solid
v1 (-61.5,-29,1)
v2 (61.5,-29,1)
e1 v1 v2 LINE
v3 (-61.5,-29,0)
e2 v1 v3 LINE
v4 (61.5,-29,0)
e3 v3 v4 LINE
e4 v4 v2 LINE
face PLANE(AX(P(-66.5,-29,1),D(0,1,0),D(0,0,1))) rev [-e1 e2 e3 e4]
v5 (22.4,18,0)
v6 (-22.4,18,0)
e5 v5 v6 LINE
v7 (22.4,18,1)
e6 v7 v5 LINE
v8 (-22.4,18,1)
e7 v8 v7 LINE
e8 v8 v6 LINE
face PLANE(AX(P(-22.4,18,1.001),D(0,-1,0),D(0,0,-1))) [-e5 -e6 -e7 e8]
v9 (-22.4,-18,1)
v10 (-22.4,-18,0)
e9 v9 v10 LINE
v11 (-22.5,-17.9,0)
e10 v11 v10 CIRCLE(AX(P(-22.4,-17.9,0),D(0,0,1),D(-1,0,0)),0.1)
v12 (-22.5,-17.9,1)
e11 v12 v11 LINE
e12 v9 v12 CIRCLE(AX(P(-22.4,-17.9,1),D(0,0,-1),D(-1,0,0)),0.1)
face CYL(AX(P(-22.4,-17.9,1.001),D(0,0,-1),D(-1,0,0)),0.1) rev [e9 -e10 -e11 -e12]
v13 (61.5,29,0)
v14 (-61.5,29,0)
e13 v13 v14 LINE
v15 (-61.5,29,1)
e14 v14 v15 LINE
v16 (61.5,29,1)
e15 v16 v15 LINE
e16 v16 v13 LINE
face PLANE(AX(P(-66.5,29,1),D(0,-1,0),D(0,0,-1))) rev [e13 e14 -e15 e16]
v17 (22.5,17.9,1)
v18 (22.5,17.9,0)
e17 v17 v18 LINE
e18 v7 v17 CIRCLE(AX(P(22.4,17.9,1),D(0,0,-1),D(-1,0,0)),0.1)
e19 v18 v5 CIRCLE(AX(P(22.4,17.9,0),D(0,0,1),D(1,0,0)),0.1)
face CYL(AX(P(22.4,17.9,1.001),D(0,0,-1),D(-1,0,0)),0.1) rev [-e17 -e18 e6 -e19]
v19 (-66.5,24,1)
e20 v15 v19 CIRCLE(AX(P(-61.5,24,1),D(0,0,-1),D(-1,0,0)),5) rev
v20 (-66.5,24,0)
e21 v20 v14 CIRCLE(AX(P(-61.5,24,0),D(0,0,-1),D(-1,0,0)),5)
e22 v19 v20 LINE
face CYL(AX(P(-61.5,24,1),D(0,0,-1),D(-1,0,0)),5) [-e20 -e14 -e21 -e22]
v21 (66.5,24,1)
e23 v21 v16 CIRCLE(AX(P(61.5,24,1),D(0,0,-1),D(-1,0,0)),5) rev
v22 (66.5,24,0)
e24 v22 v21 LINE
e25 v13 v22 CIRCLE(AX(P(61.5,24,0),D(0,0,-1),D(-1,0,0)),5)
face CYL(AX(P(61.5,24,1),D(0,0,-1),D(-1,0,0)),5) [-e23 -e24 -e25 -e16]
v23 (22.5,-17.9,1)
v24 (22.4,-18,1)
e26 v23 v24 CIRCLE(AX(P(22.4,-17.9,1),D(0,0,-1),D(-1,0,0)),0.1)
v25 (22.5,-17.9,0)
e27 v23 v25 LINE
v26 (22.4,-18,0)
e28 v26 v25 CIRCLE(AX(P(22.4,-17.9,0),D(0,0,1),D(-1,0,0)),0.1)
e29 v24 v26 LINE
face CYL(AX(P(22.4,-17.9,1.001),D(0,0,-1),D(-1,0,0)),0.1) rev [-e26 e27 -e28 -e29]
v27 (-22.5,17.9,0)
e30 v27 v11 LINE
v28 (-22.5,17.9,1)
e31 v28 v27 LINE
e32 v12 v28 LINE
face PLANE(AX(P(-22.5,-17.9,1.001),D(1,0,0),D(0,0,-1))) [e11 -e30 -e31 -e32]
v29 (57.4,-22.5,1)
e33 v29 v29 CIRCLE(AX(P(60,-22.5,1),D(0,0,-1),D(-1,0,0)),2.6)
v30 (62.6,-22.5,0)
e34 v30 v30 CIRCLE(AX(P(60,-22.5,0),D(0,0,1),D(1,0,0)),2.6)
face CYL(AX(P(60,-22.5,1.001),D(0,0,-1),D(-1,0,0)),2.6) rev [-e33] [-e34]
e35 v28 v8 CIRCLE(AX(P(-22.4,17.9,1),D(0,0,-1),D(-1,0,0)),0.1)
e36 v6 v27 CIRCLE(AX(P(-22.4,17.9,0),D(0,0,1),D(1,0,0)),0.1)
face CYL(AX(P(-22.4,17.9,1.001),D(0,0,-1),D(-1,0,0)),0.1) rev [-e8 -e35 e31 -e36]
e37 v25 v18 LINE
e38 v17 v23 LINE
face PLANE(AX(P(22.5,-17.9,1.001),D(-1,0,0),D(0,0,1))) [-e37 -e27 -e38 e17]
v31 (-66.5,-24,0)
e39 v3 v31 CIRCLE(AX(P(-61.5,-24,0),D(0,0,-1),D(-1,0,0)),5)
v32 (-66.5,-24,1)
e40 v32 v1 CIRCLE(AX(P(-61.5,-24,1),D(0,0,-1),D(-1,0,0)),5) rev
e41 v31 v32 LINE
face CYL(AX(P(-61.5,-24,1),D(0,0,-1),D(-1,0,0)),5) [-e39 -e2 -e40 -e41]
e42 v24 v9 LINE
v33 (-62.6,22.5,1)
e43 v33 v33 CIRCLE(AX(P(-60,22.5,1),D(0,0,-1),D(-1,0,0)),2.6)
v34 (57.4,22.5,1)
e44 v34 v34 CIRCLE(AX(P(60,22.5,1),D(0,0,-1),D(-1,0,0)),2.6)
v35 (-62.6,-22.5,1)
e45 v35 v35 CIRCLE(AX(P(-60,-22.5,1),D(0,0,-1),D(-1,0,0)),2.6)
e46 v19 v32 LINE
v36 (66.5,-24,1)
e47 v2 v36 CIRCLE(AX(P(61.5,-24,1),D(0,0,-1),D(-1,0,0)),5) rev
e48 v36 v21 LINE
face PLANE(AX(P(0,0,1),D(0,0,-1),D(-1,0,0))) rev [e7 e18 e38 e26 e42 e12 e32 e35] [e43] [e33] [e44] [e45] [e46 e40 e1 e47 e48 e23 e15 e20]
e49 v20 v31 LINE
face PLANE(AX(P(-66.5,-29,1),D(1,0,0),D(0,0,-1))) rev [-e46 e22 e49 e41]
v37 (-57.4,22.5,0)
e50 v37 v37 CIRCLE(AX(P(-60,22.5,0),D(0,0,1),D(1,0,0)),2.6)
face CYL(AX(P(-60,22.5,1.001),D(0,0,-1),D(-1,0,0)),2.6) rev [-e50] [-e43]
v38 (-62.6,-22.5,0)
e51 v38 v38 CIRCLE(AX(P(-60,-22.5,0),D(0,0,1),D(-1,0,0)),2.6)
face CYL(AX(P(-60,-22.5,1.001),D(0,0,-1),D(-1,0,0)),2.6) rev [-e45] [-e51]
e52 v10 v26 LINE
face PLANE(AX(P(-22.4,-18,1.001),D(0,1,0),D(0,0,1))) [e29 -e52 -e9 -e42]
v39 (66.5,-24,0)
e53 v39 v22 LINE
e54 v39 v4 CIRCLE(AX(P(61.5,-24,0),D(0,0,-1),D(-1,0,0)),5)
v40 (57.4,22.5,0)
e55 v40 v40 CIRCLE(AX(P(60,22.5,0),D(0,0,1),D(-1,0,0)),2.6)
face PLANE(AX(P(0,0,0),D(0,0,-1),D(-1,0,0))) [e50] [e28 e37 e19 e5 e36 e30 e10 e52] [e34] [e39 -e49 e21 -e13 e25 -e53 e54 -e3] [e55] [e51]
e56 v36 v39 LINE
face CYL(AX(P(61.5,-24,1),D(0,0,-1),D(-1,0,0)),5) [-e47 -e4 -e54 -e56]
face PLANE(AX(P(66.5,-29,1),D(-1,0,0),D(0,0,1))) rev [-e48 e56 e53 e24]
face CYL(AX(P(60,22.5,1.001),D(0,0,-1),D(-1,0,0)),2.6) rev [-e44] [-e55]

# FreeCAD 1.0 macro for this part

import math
import FreeCAD as App
import Part
import Sketcher

V = App.Vector
Q = App.Units.Quantity


def edges_at(feature, points):
    """Names of the edges that pass closest to the given points."""
    edges = feature.Shape.Edges
    near = lambda p: min(range(len(edges)), key=lambda i: edges[i].distToShape(Part.Vertex(*p))[0])
    return sorted({f"Edge{near(p) + 1}" for p in points})


def add_polygon(sketch, points):
    """Adds a closed chain of lines whose ends are joined by coincident constraints."""
    first, n = sketch.GeometryCount, len(points)
    for a, b in zip(points, points[1:] + points[:1]):
        sketch.addGeometry(Part.LineSegment(App.Vector(*a, 0), App.Vector(*b, 0)), False)
    for i in range(n):
        sketch.addConstraint(Sketcher.Constraint("Coincident", first + i, 2, first + (i + 1) % n, 1))

doc = App.newDocument("Part")
params = doc.addObject("Spreadsheet::Sheet", "Params")
for row, (alias, value) in enumerate([
    ("sketch1_width", "133 mm"),
    ("sketch1_height", "58 mm"),
    ("pad1_length", "1 mm"),
    ("sketch2_radius", "0.1 mm"),
    ("sketch2_width", "44.8 mm"),
    ("sketch2_height", "35.8 mm"),
    ("fillet_radius", "5 mm"),
    ("sketch3_diameter", "5.2 mm"),
    ("sketch4_diameter", "5.2 mm"),
    ("sketch5_diameter", "5.2 mm"),
    ("sketch6_diameter", "5.2 mm"),
], start=1):
    params.set(f"A{row}", alias)
    params.set(f"B{row}", "=" + value)
    params.setAlias(f"B{row}", alias)

body = doc.addObject("PartDesign::Body", "Body")

# Sketch on XY plane
sketch1 = body.newObject("Sketcher::SketchObject", "Sketch")
sketch1.AttachmentSupport = (doc.getObject("XY_Plane"), [""])
sketch1.MapMode = "FlatFace"
add_polygon(sketch1, [(-66.5, 29), (-66.5, -29), (66.5, -29), (66.5, 29)])  # lines 0-3
sketch1.addConstraint(Sketcher.Constraint("Vertical", 0))
sketch1.addConstraint(Sketcher.Constraint("Horizontal", 1))
sketch1.addConstraint(Sketcher.Constraint("Vertical", 2))
sketch1.addConstraint(Sketcher.Constraint("Horizontal", 3))
sketch1.addConstraint(Sketcher.Constraint("Symmetric", 0, 2, 2, 2, -1, 1))
sketch1.addConstraint(Sketcher.Constraint("DistanceX", 1, 1, 1, 2, Q("133 mm")))
sketch1.addConstraint(Sketcher.Constraint("DistanceY", 0, 2, 0, 1, Q("58 mm")))
sketch1.setExpression("Constraints[9]", "Params.sketch1_width")
sketch1.setExpression("Constraints[10]", "Params.sketch1_height")
pad1 = body.newObject("PartDesign::Pad", "Pad")
pad1.Profile = sketch1
pad1.setExpression("Length", "Params.pad1_length")

# Sketch on XY plane
sketch2 = body.newObject("Sketcher::SketchObject", "Sketch001")
sketch2.AttachmentSupport = (doc.getObject("XY_Plane"), [""])
sketch2.MapMode = "FlatFace"
sketch2.addGeometry(Part.LineSegment(V(-22.4, -18, 0), V(22.4, -18, 0)), False)
sketch2.addGeometry(Part.ArcOfCircle(Part.Circle(V(22.4, -17.9, 0), V(0, 0, 1), 0.1), math.radians(-90), math.radians(0)), False)
sketch2.addGeometry(Part.LineSegment(V(22.5, -17.9, 0), V(22.5, 17.9, 0)), False)
sketch2.addGeometry(Part.ArcOfCircle(Part.Circle(V(22.4, 17.9, 0), V(0, 0, 1), 0.1), math.radians(0), math.radians(90)), False)
sketch2.addGeometry(Part.LineSegment(V(22.4, 18, 0), V(-22.4, 18, 0)), False)
sketch2.addGeometry(Part.ArcOfCircle(Part.Circle(V(-22.4, 17.9, 0), V(0, 0, 1), 0.1), math.radians(90), math.radians(180)), False)
sketch2.addGeometry(Part.LineSegment(V(-22.5, 17.9, 0), V(-22.5, -17.9, 0)), False)
sketch2.addGeometry(Part.ArcOfCircle(Part.Circle(V(-22.4, -17.9, 0), V(0, 0, 1), 0.1), math.radians(180), math.radians(270)), False)
sketch2.addConstraint(Sketcher.Constraint("Tangent", 0, 2, 1, 1))
sketch2.addConstraint(Sketcher.Constraint("Tangent", 1, 2, 2, 1))
sketch2.addConstraint(Sketcher.Constraint("Tangent", 2, 2, 3, 1))
sketch2.addConstraint(Sketcher.Constraint("Tangent", 3, 2, 4, 1))
sketch2.addConstraint(Sketcher.Constraint("Tangent", 4, 2, 5, 1))
sketch2.addConstraint(Sketcher.Constraint("Tangent", 5, 2, 6, 1))
sketch2.addConstraint(Sketcher.Constraint("Tangent", 6, 2, 7, 1))
sketch2.addConstraint(Sketcher.Constraint("Tangent", 7, 2, 0, 1))
sketch2.addConstraint(Sketcher.Constraint("Horizontal", 0))
sketch2.addConstraint(Sketcher.Constraint("Vertical", 2))
sketch2.addConstraint(Sketcher.Constraint("Horizontal", 4))
sketch2.addConstraint(Sketcher.Constraint("Vertical", 6))
sketch2.addConstraint(Sketcher.Constraint("Equal", 1, 3))
sketch2.addConstraint(Sketcher.Constraint("Equal", 3, 5))
sketch2.addConstraint(Sketcher.Constraint("Equal", 5, 7))
sketch2.addConstraint(Sketcher.Constraint("Symmetric", 1, 3, 5, 3, -1, 1))
sketch2.addConstraint(Sketcher.Constraint("Radius", 1, Q("0.1 mm")))
sketch2.addConstraint(Sketcher.Constraint("DistanceX", 0, 1, 0, 2, Q("44.8 mm")))
sketch2.addConstraint(Sketcher.Constraint("DistanceY", 2, 1, 2, 2, Q("35.8 mm")))
sketch2.setExpression("Constraints[16]", "Params.sketch2_radius")
sketch2.setExpression("Constraints[17]", "Params.sketch2_width")
sketch2.setExpression("Constraints[18]", "Params.sketch2_height")
pocket1 = body.newObject("PartDesign::Pocket", "Pocket")
pocket1.Profile = sketch2
pocket1.Type = "UpToFirst"
pocket1.Reversed = True
doc.recompute()

fillet = body.newObject("PartDesign::Fillet", "Fillet")
fillet.Base = (pocket1, edges_at(pocket1, [
    (66.5, -29, 0.5),
    (-66.5, -29, 0.5),
    (-66.5, 29, 0.5),
    (66.5, 29, 0.5),
]))
fillet.setExpression("Radius", "Params.fillet_radius")

# Sketch on XY plane
sketch3 = body.newObject("Sketcher::SketchObject", "Sketch002")
sketch3.AttachmentSupport = (doc.getObject("XY_Plane"), [""])
sketch3.MapMode = "FlatFace"
sketch3.addGeometry(Part.Circle(V(-60, 22.5, 0), V(0, 0, 1), 2.6), False)
sketch3.addConstraint(Sketcher.Constraint("Diameter", 0, Q("5.2 mm")))
sketch3.addConstraint(Sketcher.Constraint("DistanceX", 0, 3, -1, 1, Q("60 mm")))
sketch3.addConstraint(Sketcher.Constraint("DistanceY", -1, 1, 0, 3, Q("22.5 mm")))
sketch3.setExpression("Constraints[0]", "Params.sketch3_diameter")
pocket2 = body.newObject("PartDesign::Pocket", "Pocket001")
pocket2.Profile = sketch3
pocket2.Type = "UpToFirst"
pocket2.Reversed = True

# Sketch on XY plane
sketch4 = body.newObject("Sketcher::SketchObject", "Sketch003")
sketch4.AttachmentSupport = (doc.getObject("XY_Plane"), [""])
sketch4.MapMode = "FlatFace"
sketch4.addGeometry(Part.Circle(V(60, 22.5, 0), V(0, 0, 1), 2.6), False)
sketch4.addConstraint(Sketcher.Constraint("Diameter", 0, Q("5.2 mm")))
sketch4.addConstraint(Sketcher.Constraint("DistanceX", -1, 1, 0, 3, Q("60 mm")))
sketch4.addConstraint(Sketcher.Constraint("DistanceY", -1, 1, 0, 3, Q("22.5 mm")))
sketch4.setExpression("Constraints[0]", "Params.sketch4_diameter")
pocket3 = body.newObject("PartDesign::Pocket", "Pocket002")
pocket3.Profile = sketch4
pocket3.Type = "UpToFirst"
pocket3.Reversed = True

# Sketch on XY plane
sketch5 = body.newObject("Sketcher::SketchObject", "Sketch004")
sketch5.AttachmentSupport = (doc.getObject("XY_Plane"), [""])
sketch5.MapMode = "FlatFace"
sketch5.addGeometry(Part.Circle(V(60, -22.5, 0), V(0, 0, 1), 2.6), False)
sketch5.addConstraint(Sketcher.Constraint("Diameter", 0, Q("5.2 mm")))
sketch5.addConstraint(Sketcher.Constraint("DistanceX", -1, 1, 0, 3, Q("60 mm")))
sketch5.addConstraint(Sketcher.Constraint("DistanceY", 0, 3, -1, 1, Q("22.5 mm")))
sketch5.setExpression("Constraints[0]", "Params.sketch5_diameter")
pocket4 = body.newObject("PartDesign::Pocket", "Pocket003")
pocket4.Profile = sketch5
pocket4.Type = "UpToFirst"
pocket4.Reversed = True

# Sketch on XY plane
sketch6 = body.newObject("Sketcher::SketchObject", "Sketch005")
sketch6.AttachmentSupport = (doc.getObject("XY_Plane"), [""])
sketch6.MapMode = "FlatFace"
sketch6.addGeometry(Part.Circle(V(-60, -22.5, 0), V(0, 0, 1), 2.6), False)
sketch6.addConstraint(Sketcher.Constraint("Diameter", 0, Q("5.2 mm")))
sketch6.addConstraint(Sketcher.Constraint("DistanceX", 0, 3, -1, 1, Q("60 mm")))
sketch6.addConstraint(Sketcher.Constraint("DistanceY", 0, 3, -1, 1, Q("22.5 mm")))
sketch6.setExpression("Constraints[0]", "Params.sketch6_diameter")
pocket5 = body.newObject("PartDesign::Pocket", "Pocket004")
pocket5.Profile = sketch6
pocket5.Type = "UpToFirst"
pocket5.Reversed = True

doc.recompute()
